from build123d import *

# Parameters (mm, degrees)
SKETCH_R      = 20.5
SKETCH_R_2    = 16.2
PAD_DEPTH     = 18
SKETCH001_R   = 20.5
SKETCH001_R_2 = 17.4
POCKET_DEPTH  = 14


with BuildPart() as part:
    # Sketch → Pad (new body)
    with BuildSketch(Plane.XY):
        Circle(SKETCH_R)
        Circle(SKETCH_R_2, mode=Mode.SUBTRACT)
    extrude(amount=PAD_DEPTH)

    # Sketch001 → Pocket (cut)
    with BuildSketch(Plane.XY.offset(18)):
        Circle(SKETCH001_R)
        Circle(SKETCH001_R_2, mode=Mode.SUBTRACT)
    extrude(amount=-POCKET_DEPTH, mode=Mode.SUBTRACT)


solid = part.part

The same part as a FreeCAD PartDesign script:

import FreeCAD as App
import Part
import Sketcher
from FreeCAD import Vector
Q = App.Units.Quantity

doc = App.newDocument("Part")
params = doc.addObject("Spreadsheet::Sheet", "Params")
for row, (alias, value) in enumerate([
    ("sketch1_diameter", "41 mm"),
    ("sketch1_diameter2", "32.4 mm"),
    ("pad1_length", "18 mm"),
    ("sketch2_diameter", "41 mm"),
    ("sketch2_diameter2", "34.8 mm"),
    ("pocket1_length", "14 mm"),
], start=1):
    params.set(f"A{row}", alias)
    params.set(f"B{row}", "=" + value)
    params.setAlias(f"B{row}", alias)

body = doc.addObject("PartDesign::Body", "Body")

# Sketch on XY plane
sketch1 = body.newObject("Sketcher::SketchObject", "Sketch")
sketch1.AttachmentSupport = (doc.getObject("XY_Plane"), [""])
sketch1.MapMode = "FlatFace"
sketch1.addGeometry([
    Part.Circle(Vector(0, 0, 0), Vector(0, 0, 1), 20),
    Part.Circle(Vector(0, 0, 0), Vector(0, 0, 1), 16),
], False)
sketch1.addConstraint([
    Sketcher.Constraint("Coincident", 0, 3, -1, 1),
    Sketcher.Constraint("Coincident", 1, 3, -1, 1),
    Sketcher.Constraint("Diameter", 0, Q("41 mm")),
    Sketcher.Constraint("Diameter", 1, Q("32.4 mm")),
])
sketch1.setExpression("Constraints[2]", "Params.sketch1_diameter")
sketch1.setExpression("Constraints[3]", "Params.sketch1_diameter2")
pad1 = body.newObject("PartDesign::Pad", "Pad")
pad1.Profile = sketch1
pad1.setExpression("Length", "Params.pad1_length")

# Sketch on XY plane
sketch2 = body.newObject("Sketcher::SketchObject", "Sketch001")
sketch2.AttachmentSupport = (doc.getObject("XY_Plane"), [""])
sketch2.MapMode = "FlatFace"
sketch2.AttachmentOffset = App.Placement(Vector(0, 0, 18), App.Rotation())
sketch2.addGeometry([
    Part.Circle(Vector(0, 0, 0), Vector(0, 0, 1), 20),
    Part.Circle(Vector(0, 0, 0), Vector(0, 0, 1), 17),
], False)
sketch2.addConstraint([
    Sketcher.Constraint("Coincident", 0, 3, -1, 1),
    Sketcher.Constraint("Coincident", 1, 3, -1, 1),
    Sketcher.Constraint("Diameter", 0, Q("41 mm")),
    Sketcher.Constraint("Diameter", 1, Q("34.8 mm")),
])
sketch2.setExpression("Constraints[2]", "Params.sketch2_diameter")
sketch2.setExpression("Constraints[3]", "Params.sketch2_diameter2")
pocket1 = body.newObject("PartDesign::Pocket", "Pocket")
pocket1.Profile = sketch2
pocket1.setExpression("Length", "Params.pocket1_length")

doc.recompute()
